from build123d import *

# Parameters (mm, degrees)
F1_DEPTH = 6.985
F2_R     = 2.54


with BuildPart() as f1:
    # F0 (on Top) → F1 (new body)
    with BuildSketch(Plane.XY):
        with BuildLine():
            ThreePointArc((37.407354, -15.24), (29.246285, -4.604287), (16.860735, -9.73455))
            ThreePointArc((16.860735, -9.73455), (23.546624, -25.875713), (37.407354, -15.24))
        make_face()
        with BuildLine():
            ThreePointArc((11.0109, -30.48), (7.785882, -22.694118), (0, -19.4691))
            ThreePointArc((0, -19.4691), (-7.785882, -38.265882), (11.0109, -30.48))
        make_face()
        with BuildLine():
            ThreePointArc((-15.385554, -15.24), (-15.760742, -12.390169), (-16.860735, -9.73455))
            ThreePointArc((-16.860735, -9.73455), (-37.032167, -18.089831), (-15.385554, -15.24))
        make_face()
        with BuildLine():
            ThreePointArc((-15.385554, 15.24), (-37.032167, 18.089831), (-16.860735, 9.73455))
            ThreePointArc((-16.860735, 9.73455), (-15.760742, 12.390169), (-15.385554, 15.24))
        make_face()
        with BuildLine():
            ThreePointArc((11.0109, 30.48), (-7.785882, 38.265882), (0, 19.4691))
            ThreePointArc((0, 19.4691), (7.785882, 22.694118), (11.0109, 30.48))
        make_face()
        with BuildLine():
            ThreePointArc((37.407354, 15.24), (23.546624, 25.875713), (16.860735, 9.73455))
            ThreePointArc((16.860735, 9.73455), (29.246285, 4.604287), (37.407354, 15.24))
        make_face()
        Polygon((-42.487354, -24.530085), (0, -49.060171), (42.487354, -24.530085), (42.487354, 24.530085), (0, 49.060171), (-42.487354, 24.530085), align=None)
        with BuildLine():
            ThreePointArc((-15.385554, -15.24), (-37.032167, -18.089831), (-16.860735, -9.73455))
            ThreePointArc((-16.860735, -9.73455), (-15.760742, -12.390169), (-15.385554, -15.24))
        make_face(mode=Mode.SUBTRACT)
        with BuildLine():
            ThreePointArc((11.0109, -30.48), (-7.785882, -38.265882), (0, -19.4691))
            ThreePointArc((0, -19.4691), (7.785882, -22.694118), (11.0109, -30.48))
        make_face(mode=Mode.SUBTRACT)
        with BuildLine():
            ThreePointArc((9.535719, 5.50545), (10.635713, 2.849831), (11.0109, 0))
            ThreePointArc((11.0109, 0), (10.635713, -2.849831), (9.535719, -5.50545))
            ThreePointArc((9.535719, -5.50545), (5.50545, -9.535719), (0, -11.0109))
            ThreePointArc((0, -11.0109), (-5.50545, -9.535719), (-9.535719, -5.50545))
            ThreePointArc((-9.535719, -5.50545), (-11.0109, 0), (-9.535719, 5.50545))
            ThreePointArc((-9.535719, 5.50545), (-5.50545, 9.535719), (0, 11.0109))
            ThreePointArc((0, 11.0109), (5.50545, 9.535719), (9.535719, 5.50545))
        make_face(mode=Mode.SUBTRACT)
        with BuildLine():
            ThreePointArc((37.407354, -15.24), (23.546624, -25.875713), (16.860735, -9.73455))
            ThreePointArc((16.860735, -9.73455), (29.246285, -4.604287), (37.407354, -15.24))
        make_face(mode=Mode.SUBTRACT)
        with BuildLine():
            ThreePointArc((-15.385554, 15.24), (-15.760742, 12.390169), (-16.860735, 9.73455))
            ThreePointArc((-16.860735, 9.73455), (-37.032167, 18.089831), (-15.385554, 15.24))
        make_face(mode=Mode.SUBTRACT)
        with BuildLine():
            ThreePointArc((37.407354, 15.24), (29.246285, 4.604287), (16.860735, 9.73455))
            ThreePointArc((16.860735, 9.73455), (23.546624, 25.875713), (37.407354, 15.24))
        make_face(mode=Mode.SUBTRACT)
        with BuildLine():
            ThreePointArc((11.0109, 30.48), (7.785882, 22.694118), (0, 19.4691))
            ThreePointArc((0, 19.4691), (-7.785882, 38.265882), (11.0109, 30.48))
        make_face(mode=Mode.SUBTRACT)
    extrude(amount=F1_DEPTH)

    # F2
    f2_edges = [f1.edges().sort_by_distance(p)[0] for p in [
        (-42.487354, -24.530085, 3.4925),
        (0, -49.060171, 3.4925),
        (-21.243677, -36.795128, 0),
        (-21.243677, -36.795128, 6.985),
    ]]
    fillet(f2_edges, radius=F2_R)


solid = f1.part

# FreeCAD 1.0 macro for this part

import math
import FreeCAD as App
import Part
import Sketcher

V = App.Vector
Q = App.Units.Quantity


def edges_at(feature, points):
    """Names of the edges that pass closest to the given points."""
    edges = feature.Shape.Edges
    near = lambda p: min(range(len(edges)), key=lambda i: edges[i].distToShape(Part.Vertex(*p))[0])
    return sorted({f"Edge{near(p) + 1}" for p in points})


def add_polygon(sketch, points):
    """Adds a closed chain of lines whose ends are joined by coincident constraints."""
    first, n = sketch.GeometryCount, len(points)
    for a, b in zip(points, points[1:] + points[:1]):
        sketch.addGeometry(Part.LineSegment(App.Vector(*a, 0), App.Vector(*b, 0)), False)
    for i in range(n):
        sketch.addConstraint(Sketcher.Constraint("Coincident", first + i, 2, first + (i + 1) % n, 1))

doc = App.newDocument("Part")
body = doc.addObject("PartDesign::Body", "Body")

sketch1 = body.newObject("Sketcher::SketchObject", "Sketch")
sketch1.AttachmentSupport = (doc.getObject("XY_Plane"), [""])
sketch1.MapMode = "FlatFace"
add_polygon(sketch1, [(-42, -25), (0, -49), (42, -25), (42, 25), (0, 49), (-42, 25)])
sketch1.addGeometry(Part.ArcOfCircle(Part.Circle(V(-26, -15, 0), V(0, 0, 1), 11), math.radians(0), math.radians(30)), False)
sketch1.addGeometry(Part.ArcOfCircle(Part.Circle(V(-26, -15, 0), V(0, 0, 1), 11), math.radians(30), math.radians(360)), False)
sketch1.addGeometry(Part.ArcOfCircle(Part.Circle(V(0, -30, 0), V(0, 0, 1), 11), math.radians(0), math.radians(90)), False)
sketch1.addGeometry(Part.ArcOfCircle(Part.Circle(V(0, -30, 0), V(0, 0, 1), 11), math.radians(90), math.radians(360)), False)
sketch1.addGeometry(Part.ArcOfCircle(Part.Circle(V(26, -15, 0), V(0, 0, 1), 11), math.radians(0), math.radians(150)), False)
sketch1.addGeometry(Part.ArcOfCircle(Part.Circle(V(26, -15, 0), V(0, 0, 1), 11), math.radians(150), math.radians(360)), False)
sketch1.addGeometry(Part.ArcOfCircle(Part.Circle(V(-26, 15, 0), V(0, 0, 1), 11), math.radians(0), math.radians(330)), False)
sketch1.addGeometry(Part.ArcOfCircle(Part.Circle(V(-26, 15, 0), V(0, 0, 1), 11), math.radians(-30), math.radians(0)), False)
sketch1.addGeometry(Part.ArcOfCircle(Part.Circle(V(0, 0, 0), V(0, 0, 1), 11), math.radians(30), math.radians(90)), False)
sketch1.addGeometry(Part.ArcOfCircle(Part.Circle(V(0, 0, 0), V(0, 0, 1), 11), math.radians(0), math.radians(30)), False)
sketch1.addGeometry(Part.ArcOfCircle(Part.Circle(V(0, 0, 0), V(0, 0, 1), 11), math.radians(-30), math.radians(0)), False)
sketch1.addGeometry(Part.ArcOfCircle(Part.Circle(V(0, 0, 0), V(0, 0, 1), 11), math.radians(-90), math.radians(-30)), False)
sketch1.addGeometry(Part.ArcOfCircle(Part.Circle(V(0, 0, 0), V(0, 0, 1), 11), math.radians(-150), math.radians(-90)), False)
sketch1.addGeometry(Part.ArcOfCircle(Part.Circle(V(0, 0, 0), V(0, 0, 1), 11), math.radians(150), math.radians(210)), False)
sketch1.addGeometry(Part.ArcOfCircle(Part.Circle(V(0, 0, 0), V(0, 0, 1), 11), math.radians(90), math.radians(150)), False)
sketch1.addGeometry(Part.ArcOfCircle(Part.Circle(V(26, 15, 0), V(0, 0, 1), 11), math.radians(0), math.radians(210)), False)
sketch1.addGeometry(Part.ArcOfCircle(Part.Circle(V(26, 15, 0), V(0, 0, 1), 11), math.radians(-150), math.radians(0)), False)
sketch1.addGeometry(Part.ArcOfCircle(Part.Circle(V(0, 30, 0), V(0, 0, 1), 11), math.radians(0), math.radians(270)), False)
sketch1.addGeometry(Part.ArcOfCircle(Part.Circle(V(0, 30, 0), V(0, 0, 1), 11), math.radians(-90), math.radians(0)), False)
sketch1.addConstraint([
    Sketcher.Constraint("Tangent", 6, 1, 7, 2),
    Sketcher.Constraint("Coincident", 7, 1, 6, 2),
    Sketcher.Constraint("Tangent", 8, 1, 9, 2),
    Sketcher.Constraint("Coincident", 9, 1, 8, 2),
    Sketcher.Constraint("Tangent", 10, 1, 11, 2),
    Sketcher.Constraint("Coincident", 11, 1, 10, 2),
    Sketcher.Constraint("Tangent", 12, 1, 13, 2),
    Sketcher.Constraint("Coincident", 13, 1, 12, 2),
    Sketcher.Constraint("Tangent", 14, 1, 15, 2),
    Sketcher.Constraint("Tangent", 15, 1, 16, 2),
    Sketcher.Constraint("Tangent", 16, 1, 17, 2),
    Sketcher.Constraint("Tangent", 17, 1, 18, 2),
    Sketcher.Constraint("Tangent", 18, 1, 19, 2),
    Sketcher.Constraint("Tangent", 19, 1, 20, 2),
    Sketcher.Constraint("Tangent", 20, 1, 14, 2),
    Sketcher.Constraint("Tangent", 21, 1, 22, 2),
    Sketcher.Constraint("Coincident", 22, 1, 21, 2),
    Sketcher.Constraint("Tangent", 23, 1, 24, 2),
    Sketcher.Constraint("Coincident", 24, 1, 23, 2),
    Sketcher.Constraint("Vertical", 2),
    Sketcher.Constraint("Vertical", 5),
    Sketcher.Constraint("Coincident", 14, 3, -1, 1),
    Sketcher.Constraint("Coincident", 17, 3, -1, 1),
    Sketcher.Constraint("Coincident", 19, 3, -1, 1),
    Sketcher.Constraint("Equal", 7, 8),
    Sketcher.Constraint("Equal", 9, 10),
    Sketcher.Constraint("Equal", 11, 12),
    Sketcher.Constraint("Equal", 12, 14),
    Sketcher.Constraint("Equal", 20, 21),
    Sketcher.Constraint("Equal", 22, 23),
    Sketcher.Constraint("Symmetric", 10, 3, 12, 3, -1, 1),
    Sketcher.Constraint("Symmetric", 7, 3, 21, 3, -1, 1),
    Sketcher.Constraint("Symmetric", 8, 3, 23, 3, -1, 1),
    Sketcher.Constraint("Symmetric", 0, 2, 3, 2, -1, 1),
    Sketcher.Constraint("Symmetric", 1, 2, 4, 2, -1, 1),
    Sketcher.Constraint("Symmetric", 7, 3, 10, 3, -2),
    Sketcher.Constraint("Symmetric", 8, 1, 23, 1, -1),
    Sketcher.Constraint("PointOnObject", 0, 2, -2),
    Sketcher.Constraint("PointOnObject", 9, 1, -2),
    Sketcher.Constraint("PointOnObject", 15, 1, -1),
    Sketcher.Constraint("PointOnObject", 17, 1, -2),
    Sketcher.Constraint("PointOnObject", 20, 1, -2),
    Sketcher.Constraint("PointOnObject", 24, 1, -2),
    Sketcher.Constraint("Parallel", 0, 3),
    Sketcher.Constraint("Horizontal", 2, 2, 4, 2),
    Sketcher.Constraint("Horizontal", 11, 3, 6, 1),
    Sketcher.Constraint("Horizontal", 9, 3, 8, 1),
    Sketcher.Constraint("Horizontal", 6, 1, 10, 1),
    Sketcher.Constraint("Horizontal", 7, 1, 11, 1),
    Sketcher.Constraint("Horizontal", 22, 3, 12, 1),
    Sketcher.Constraint("Horizontal", 16, 1, 18, 1),
    Sketcher.Constraint("Horizontal", 14, 1, 19, 1),
    Sketcher.Constraint("Horizontal", 12, 1, 21, 1),
    Sketcher.Constraint("Horizontal", 13, 1, 22, 1),
    Sketcher.Constraint("Vertical", 7, 1, 13, 1),
    Sketcher.Constraint("Vertical", 14, 1, 16, 1),
    Sketcher.Constraint("Angle", 0, Q("-30.000001 deg")),
    Sketcher.Constraint("DistanceY", 6, 3, -1, 1, Q("0.6000002 in")),
    Sketcher.Constraint("DistanceY", 8, 3, -1, 1, Q("1.2 in")),
    Sketcher.Constraint("Radius", 7, Q("0.4335 in")),
    Sketcher.Constraint("DistanceX", 10, 1, 1, 2, Q("0.2 in")),
    Sketcher.Constraint("DistanceY", 11, 1, 16, 1, Q("0.1665 in")),
    Sketcher.Constraint("DistanceY", 2, 1, 2, 2, 49.06017),
    Sketcher.Constraint("Distance", 0, 49.060171),
    Sketcher.Constraint("DistanceY", 7, 1, -1, 1, 9.73455),
])
pad1 = body.newObject("PartDesign::Pad", "Pad")
pad1.Profile = sketch1
pad1.Length = Q("0.275 in")
doc.recompute()

fillet = body.newObject("PartDesign::Fillet", "Fillet")
fillet.Base = (pad1, edges_at(pad1, [
    (-42.487, -24.53, 3.493),
    (0, -49.06, 3.493),
    (-21.244, -36.795, 0),
    (-21.244, -36.795, 6.985),
]))
fillet.Radius = Q("0.1 in")

doc.recompute()
